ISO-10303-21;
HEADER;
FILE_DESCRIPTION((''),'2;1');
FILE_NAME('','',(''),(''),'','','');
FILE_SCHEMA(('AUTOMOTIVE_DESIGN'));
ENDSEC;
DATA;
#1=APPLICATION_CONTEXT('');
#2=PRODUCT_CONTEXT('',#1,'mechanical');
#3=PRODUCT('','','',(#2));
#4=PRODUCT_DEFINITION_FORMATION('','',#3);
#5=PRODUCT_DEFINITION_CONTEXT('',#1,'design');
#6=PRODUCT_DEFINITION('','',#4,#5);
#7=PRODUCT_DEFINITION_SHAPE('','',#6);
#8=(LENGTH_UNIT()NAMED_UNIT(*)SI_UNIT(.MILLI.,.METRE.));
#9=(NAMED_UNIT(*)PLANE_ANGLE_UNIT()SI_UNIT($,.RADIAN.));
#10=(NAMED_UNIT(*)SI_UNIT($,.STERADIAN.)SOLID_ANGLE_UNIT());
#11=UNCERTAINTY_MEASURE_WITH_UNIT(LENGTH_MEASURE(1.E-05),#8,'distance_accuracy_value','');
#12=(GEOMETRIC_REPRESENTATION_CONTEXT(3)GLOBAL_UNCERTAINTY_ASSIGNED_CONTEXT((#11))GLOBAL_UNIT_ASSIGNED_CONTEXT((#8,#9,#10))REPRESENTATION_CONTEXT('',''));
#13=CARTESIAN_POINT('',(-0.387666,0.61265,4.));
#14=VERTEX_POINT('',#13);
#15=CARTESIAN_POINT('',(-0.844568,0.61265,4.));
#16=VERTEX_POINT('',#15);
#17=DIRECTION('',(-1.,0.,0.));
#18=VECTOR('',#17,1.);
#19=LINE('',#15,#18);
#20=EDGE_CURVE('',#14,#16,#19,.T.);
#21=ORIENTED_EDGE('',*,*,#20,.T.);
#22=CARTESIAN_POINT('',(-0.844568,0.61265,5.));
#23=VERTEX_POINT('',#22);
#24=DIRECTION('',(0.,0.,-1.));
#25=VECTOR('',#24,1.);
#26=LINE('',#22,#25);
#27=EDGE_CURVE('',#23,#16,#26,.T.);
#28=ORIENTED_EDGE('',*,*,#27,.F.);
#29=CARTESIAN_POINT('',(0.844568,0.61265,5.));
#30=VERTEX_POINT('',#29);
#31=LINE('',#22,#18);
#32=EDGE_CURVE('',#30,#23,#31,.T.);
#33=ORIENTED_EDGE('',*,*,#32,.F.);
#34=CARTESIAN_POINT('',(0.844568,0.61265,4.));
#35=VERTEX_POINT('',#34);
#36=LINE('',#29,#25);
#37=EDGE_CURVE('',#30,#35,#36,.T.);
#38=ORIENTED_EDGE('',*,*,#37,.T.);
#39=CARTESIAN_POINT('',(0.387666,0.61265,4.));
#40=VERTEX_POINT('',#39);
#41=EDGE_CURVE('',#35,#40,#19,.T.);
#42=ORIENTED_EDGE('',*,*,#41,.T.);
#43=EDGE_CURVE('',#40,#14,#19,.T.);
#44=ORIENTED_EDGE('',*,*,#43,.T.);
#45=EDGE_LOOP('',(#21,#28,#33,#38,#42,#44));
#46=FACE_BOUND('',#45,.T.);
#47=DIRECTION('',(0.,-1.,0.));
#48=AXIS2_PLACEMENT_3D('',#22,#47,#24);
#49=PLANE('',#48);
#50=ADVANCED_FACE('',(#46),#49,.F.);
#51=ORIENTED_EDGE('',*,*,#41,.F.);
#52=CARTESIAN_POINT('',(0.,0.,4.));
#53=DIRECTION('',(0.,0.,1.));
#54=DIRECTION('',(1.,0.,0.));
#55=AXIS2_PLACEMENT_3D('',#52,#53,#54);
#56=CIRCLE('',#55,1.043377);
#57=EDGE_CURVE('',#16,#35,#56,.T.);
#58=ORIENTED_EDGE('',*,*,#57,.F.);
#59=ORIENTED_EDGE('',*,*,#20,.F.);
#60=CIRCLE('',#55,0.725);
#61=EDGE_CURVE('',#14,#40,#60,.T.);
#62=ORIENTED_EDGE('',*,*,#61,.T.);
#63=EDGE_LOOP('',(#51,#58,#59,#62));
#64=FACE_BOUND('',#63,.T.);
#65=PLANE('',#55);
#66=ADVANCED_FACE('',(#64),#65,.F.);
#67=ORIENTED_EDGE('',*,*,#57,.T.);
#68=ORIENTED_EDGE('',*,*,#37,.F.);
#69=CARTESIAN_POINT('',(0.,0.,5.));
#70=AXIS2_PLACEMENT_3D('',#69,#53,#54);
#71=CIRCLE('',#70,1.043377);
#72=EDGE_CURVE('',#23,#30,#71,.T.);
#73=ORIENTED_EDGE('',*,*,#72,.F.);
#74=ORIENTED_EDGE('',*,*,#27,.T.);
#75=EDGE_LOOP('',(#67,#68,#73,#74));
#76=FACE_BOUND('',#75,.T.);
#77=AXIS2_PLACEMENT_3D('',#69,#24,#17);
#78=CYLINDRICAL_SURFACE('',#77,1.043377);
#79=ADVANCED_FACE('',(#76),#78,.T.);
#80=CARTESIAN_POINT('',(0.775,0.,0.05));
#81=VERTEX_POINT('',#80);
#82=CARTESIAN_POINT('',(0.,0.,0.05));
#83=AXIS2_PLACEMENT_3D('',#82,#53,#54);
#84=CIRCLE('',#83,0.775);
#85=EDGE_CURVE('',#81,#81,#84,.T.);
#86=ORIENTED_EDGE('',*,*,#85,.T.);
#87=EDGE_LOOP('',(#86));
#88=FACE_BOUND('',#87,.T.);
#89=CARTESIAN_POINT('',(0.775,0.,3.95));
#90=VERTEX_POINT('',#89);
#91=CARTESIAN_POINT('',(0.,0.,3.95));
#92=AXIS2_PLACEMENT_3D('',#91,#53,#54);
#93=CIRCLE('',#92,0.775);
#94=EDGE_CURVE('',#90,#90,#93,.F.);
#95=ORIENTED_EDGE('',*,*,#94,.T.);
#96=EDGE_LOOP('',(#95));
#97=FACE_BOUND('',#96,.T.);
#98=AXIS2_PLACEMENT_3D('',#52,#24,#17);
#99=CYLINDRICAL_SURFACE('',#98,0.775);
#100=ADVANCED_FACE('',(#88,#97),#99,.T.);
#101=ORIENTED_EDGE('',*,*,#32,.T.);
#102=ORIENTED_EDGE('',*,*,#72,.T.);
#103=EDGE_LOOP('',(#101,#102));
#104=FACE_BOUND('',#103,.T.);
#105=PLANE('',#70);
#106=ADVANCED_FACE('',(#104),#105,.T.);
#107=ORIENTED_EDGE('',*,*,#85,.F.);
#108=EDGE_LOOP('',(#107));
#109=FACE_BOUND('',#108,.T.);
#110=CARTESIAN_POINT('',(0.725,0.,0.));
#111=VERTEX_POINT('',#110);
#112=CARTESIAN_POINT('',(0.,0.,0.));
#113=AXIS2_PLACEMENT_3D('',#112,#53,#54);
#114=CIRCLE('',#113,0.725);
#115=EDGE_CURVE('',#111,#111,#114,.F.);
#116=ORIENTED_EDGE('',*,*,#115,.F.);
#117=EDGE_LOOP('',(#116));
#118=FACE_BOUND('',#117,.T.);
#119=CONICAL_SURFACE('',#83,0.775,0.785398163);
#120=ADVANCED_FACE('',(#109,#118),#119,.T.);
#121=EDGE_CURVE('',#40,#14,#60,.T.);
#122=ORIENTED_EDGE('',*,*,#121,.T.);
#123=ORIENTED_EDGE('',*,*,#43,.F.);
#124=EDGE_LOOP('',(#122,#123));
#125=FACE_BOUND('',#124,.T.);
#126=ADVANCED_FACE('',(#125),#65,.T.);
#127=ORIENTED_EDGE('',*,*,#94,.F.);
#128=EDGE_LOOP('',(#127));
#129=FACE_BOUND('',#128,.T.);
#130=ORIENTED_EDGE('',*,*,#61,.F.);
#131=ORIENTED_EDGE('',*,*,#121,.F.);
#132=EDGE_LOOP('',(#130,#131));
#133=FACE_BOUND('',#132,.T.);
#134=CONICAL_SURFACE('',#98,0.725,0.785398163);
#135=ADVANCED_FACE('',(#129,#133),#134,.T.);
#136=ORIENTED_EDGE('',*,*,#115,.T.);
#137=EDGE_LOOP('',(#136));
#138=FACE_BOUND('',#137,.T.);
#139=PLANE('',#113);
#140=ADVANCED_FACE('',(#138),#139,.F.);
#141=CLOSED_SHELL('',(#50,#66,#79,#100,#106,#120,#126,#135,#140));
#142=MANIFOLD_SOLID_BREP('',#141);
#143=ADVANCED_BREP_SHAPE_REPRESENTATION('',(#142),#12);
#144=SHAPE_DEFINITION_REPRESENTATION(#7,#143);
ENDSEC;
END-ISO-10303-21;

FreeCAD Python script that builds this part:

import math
import FreeCAD as App
import Part
import Sketcher

V = App.Vector
Q = App.Units.Quantity


def edges_at(feature, points):
    """Names of the edges that pass closest to the given points."""
    edges = feature.Shape.Edges
    near = lambda p: min(range(len(edges)), key=lambda i: edges[i].distToShape(Part.Vertex(*p))[0])
    return sorted({f"Edge{near(p) + 1}" for p in points})

doc = App.newDocument("Part")
body = doc.addObject("PartDesign::Body", "Body")

sketch1 = body.newObject("Sketcher::SketchObject", "Sketch")
sketch1.AttachmentSupport = (doc.getObject("XY_Plane"), [""])
sketch1.MapMode = "FlatFace"
sketch1.addGeometry(Part.Circle(V(0, 0, 0), V(0, 0, 1), 0.8), False)
sketch1.addConstraint([
    Sketcher.Constraint("Coincident", 0, 3, -1, 1),
    Sketcher.Constraint("Diameter", 0, Q("1.55 mm")),
])
pad1 = body.newObject("PartDesign::Pad", "Pad")
pad1.Profile = sketch1
pad1.Length = 4
doc.recompute()

chamfer = body.newObject("PartDesign::Chamfer", "Chamfer")
chamfer.Base = (pad1, edges_at(pad1, [(-0.775, 0, 0), (-0.775, 0, 4)]))
chamfer.Size = 0.05

sketch2 = body.newObject("Sketcher::SketchObject", "Sketch001")
sketch2.AttachmentSupport = (doc.getObject("XY_Plane"), [""])
sketch2.MapMode = "FlatFace"
sketch2.AttachmentOffset = App.Placement(V(0, 0, 4), App.Rotation())
sketch2.addGeometry([
    Part.LineSegment(V(0.8, 0.6, 0), V(-0.8, 0.6, 0)),
    Part.ArcOfCircle(Part.Circle(V(0, 0, 0), V(0, 0, 1), 1), math.radians(144), math.radians(396)),
], False)
sketch2.addConstraint([
    Sketcher.Constraint("Coincident", 0, 1, 1, 2),
    Sketcher.Constraint("Coincident", 1, 1, 0, 2),
    Sketcher.Constraint("Horizontal", 0),
    Sketcher.Constraint("Coincident", 1, 3, -1, 1),
    Sketcher.Constraint("Radius", 1, Q("1.043377 mm")),
    Sketcher.Constraint("DistanceX", 0, 2, 0, 1, Q("1.689136 mm")),
])
pad2 = body.newObject("PartDesign::Pad", "Pad001")
pad2.Profile = sketch2
pad2.Length = 1

doc.recompute()
